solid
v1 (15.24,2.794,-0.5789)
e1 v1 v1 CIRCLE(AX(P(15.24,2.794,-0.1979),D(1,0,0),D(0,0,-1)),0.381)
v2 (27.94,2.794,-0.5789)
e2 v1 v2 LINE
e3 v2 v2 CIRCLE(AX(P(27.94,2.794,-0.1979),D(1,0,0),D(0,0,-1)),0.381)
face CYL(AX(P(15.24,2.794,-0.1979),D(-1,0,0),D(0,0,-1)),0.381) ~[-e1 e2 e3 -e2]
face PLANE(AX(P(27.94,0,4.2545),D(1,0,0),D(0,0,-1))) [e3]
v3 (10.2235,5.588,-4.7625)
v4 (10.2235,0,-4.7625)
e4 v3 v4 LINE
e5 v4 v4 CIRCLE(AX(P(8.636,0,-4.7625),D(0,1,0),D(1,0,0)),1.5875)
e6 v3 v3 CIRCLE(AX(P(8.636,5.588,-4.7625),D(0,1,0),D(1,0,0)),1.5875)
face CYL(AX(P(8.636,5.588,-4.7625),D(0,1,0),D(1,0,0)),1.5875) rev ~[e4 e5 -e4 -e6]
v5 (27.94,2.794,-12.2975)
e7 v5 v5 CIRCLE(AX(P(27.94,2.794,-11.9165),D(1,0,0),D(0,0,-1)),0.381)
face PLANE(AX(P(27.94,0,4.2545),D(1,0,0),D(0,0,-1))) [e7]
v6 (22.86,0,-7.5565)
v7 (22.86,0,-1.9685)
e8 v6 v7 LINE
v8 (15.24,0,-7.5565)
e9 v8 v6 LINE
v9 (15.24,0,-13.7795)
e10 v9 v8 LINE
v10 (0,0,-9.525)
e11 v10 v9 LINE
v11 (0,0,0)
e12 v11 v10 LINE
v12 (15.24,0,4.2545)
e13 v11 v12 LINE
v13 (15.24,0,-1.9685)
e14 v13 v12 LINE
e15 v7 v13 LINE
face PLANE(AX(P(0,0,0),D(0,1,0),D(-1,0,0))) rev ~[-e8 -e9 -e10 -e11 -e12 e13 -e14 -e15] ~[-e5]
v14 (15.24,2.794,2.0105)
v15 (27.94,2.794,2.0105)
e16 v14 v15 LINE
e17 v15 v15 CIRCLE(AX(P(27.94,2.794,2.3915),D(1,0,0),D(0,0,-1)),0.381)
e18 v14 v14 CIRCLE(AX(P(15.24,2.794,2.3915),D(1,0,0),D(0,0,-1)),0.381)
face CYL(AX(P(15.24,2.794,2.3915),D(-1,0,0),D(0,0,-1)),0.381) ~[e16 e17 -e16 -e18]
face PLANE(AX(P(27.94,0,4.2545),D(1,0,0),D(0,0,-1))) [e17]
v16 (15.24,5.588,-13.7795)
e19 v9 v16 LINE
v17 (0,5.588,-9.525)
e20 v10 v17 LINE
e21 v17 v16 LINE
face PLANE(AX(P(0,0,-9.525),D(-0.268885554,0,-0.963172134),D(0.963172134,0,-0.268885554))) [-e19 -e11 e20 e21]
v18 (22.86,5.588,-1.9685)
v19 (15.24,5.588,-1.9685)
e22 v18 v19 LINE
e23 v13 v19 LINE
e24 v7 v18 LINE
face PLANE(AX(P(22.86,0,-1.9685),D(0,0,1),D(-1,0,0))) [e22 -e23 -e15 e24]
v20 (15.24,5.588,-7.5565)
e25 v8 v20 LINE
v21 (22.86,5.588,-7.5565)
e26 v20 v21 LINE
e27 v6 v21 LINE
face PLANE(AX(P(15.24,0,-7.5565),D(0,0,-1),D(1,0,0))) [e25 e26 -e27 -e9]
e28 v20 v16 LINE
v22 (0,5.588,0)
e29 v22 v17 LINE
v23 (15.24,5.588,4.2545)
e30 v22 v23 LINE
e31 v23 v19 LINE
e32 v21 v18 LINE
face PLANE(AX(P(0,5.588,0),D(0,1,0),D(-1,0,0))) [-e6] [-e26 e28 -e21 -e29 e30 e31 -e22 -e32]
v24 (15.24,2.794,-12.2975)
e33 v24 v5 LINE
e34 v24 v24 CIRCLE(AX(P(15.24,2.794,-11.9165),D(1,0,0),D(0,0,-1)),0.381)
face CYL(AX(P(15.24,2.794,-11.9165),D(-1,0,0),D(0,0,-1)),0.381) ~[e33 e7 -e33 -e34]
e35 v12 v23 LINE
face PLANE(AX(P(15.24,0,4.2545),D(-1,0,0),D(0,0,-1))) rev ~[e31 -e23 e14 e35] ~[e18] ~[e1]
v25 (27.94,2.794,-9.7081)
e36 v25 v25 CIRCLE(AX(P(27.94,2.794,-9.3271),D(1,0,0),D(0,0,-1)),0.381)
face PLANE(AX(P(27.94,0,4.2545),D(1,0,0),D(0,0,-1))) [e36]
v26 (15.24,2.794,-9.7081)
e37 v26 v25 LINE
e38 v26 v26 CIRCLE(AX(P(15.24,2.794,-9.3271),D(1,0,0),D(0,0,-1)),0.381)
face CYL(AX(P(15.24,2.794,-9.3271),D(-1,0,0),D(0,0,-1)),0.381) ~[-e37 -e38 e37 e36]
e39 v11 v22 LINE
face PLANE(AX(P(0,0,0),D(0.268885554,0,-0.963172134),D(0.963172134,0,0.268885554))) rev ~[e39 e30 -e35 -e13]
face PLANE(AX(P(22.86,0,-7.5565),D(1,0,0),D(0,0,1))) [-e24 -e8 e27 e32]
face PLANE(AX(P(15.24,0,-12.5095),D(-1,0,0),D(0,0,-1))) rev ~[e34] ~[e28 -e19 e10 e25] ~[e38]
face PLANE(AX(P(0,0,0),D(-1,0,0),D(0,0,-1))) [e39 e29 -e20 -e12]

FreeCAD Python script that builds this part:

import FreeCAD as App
import Part
import Sketcher

V = App.Vector
Q = App.Units.Quantity


def add_polygon(sketch, points):
    """Adds a closed chain of lines whose ends are joined by coincident constraints."""
    first, n = sketch.GeometryCount, len(points)
    for a, b in zip(points, points[1:] + points[:1]):
        sketch.addGeometry(Part.LineSegment(App.Vector(*a, 0), App.Vector(*b, 0)), False)
    for i in range(n):
        sketch.addConstraint(Sketcher.Constraint("Coincident", first + i, 2, first + (i + 1) % n, 1))

doc = App.newDocument("Part")
body = doc.addObject("PartDesign::Body", "Body")

sketch1 = body.newObject("Sketcher::SketchObject", "Sketch")
sketch1.AttachmentSupport = (doc.getObject("XZ_Plane"), [""])
sketch1.MapMode = "FlatFace"
add_polygon(sketch1, [(0, -9.525), (0, 0), (15.24, 4.2545), (15.24, -1.9685), (22.86, -1.9685), (22.86, -7.5565), (15.24, -7.5565), (15.24, -13.7795)])
sketch1.addConstraint([
    Sketcher.Constraint("Vertical", 0),
    Sketcher.Constraint("Vertical", 2),
    Sketcher.Constraint("Horizontal", 3),
    Sketcher.Constraint("Vertical", 4),
    Sketcher.Constraint("Horizontal", 5),
    Sketcher.Constraint("Vertical", 6),
    Sketcher.Constraint("Coincident", 0, 2, -1, 1),
    Sketcher.Constraint("Vertical", 2, 2, 5, 2),
    Sketcher.Constraint("Equal", 2, 6),
    Sketcher.Constraint("Equal", 1, 7),
    Sketcher.Constraint("DistanceX", 3, 1, 3, 2, Q("0.3 in")),
    Sketcher.Constraint("DistanceY", 4, 2, 4, 1, Q("0.22 in")),
    Sketcher.Constraint("DistanceX", -1, 1, 1, 2, Q("0.6 in")),
    Sketcher.Constraint("DistanceY", 0, 1, 0, 2, Q("0.375 in")),
    Sketcher.Constraint("DistanceY", 2, 2, 2, 1, Q("0.245 in")),
])
pad1 = body.newObject("PartDesign::Pad", "Pad")
pad1.Profile = sketch1
pad1.Length = Q("0.22 in")
pad1.Reversed = True

sketch2 = body.newObject("Sketcher::SketchObject", "Sketch001")
sketch2.AttachmentSupport = (doc.getObject("XZ_Plane"), [""])
sketch2.MapMode = "FlatFace"
sketch2.AttachmentOffset = App.Placement(V(0, 0, -0.22 * 25.4), App.Rotation())
sketch2.addGeometry(Part.Circle(V(8.636, -4.7625, 0), V(0, 0, 1), 1.5875), False)
sketch2.addConstraint([
    Sketcher.Constraint("Diameter", 0, Q("0.125 in")),
    Sketcher.Constraint("DistanceX", -1, 1, 0, 3, Q("0.34 in")),
    Sketcher.Constraint("DistanceY", 0, 3, -1, 1, Q("0.1875 in")),
])
pocket1 = body.newObject("PartDesign::Pocket", "Pocket")
pocket1.Profile = sketch2
pocket1.Length = Q("0.22 in")
pocket1.Reversed = True

sketch3 = body.newObject("Sketcher::SketchObject", "Sketch002")
sketch3.AttachmentSupport = (doc.getObject("YZ_Plane"), [""])
sketch3.MapMode = "FlatFace"
sketch3.AttachmentOffset = App.Placement(V(0, 0, 0.6 * 25.4), App.Rotation())
sketch3.addGeometry([
    Part.Circle(V(2.794, 2.3915, 0), V(0, 0, 1), 0.381),
    Part.Circle(V(2.794, -0.1979, 0), V(0, 0, 1), 0.381),
    Part.Circle(V(2.794, -11.9165, 0), V(0, 0, 1), 0.381),
    Part.Circle(V(2.794, -9.3271, 0), V(0, 0, 1), 0.381),
], False)
sketch3.addConstraint([
    Sketcher.Constraint("Equal", 0, 1),
    Sketcher.Constraint("Equal", 1, 2),
    Sketcher.Constraint("Equal", 2, 3),
    Sketcher.Constraint("Vertical", 0, 3, 1, 3),
    Sketcher.Constraint("Vertical", 1, 3, 2, 3),
    Sketcher.Constraint("Vertical", 2, 3, 3, 3),
    Sketcher.Constraint("Diameter", 0, Q("0.03 in")),
    Sketcher.Constraint("DistanceX", -1, 1, 0, 3, Q("0.11 in")),
    Sketcher.Constraint("DistanceY", 1, 3, -1, 1, Q("0.0078 in")),
    Sketcher.Constraint("DistanceY", 3, 3, -1, 1, Q("0.3672 in")),
    Sketcher.Constraint("DistanceY", 2, 3, 0, 3, Q("0.5633 in")),
    Sketcher.Constraint("DistanceY", -1, 1, 0, 3, 2.3915),
])
pad2 = body.newObject("PartDesign::Pad", "Pad001")
pad2.Profile = sketch3
pad2.Length = Q("0.5 in")

doc.recompute()
